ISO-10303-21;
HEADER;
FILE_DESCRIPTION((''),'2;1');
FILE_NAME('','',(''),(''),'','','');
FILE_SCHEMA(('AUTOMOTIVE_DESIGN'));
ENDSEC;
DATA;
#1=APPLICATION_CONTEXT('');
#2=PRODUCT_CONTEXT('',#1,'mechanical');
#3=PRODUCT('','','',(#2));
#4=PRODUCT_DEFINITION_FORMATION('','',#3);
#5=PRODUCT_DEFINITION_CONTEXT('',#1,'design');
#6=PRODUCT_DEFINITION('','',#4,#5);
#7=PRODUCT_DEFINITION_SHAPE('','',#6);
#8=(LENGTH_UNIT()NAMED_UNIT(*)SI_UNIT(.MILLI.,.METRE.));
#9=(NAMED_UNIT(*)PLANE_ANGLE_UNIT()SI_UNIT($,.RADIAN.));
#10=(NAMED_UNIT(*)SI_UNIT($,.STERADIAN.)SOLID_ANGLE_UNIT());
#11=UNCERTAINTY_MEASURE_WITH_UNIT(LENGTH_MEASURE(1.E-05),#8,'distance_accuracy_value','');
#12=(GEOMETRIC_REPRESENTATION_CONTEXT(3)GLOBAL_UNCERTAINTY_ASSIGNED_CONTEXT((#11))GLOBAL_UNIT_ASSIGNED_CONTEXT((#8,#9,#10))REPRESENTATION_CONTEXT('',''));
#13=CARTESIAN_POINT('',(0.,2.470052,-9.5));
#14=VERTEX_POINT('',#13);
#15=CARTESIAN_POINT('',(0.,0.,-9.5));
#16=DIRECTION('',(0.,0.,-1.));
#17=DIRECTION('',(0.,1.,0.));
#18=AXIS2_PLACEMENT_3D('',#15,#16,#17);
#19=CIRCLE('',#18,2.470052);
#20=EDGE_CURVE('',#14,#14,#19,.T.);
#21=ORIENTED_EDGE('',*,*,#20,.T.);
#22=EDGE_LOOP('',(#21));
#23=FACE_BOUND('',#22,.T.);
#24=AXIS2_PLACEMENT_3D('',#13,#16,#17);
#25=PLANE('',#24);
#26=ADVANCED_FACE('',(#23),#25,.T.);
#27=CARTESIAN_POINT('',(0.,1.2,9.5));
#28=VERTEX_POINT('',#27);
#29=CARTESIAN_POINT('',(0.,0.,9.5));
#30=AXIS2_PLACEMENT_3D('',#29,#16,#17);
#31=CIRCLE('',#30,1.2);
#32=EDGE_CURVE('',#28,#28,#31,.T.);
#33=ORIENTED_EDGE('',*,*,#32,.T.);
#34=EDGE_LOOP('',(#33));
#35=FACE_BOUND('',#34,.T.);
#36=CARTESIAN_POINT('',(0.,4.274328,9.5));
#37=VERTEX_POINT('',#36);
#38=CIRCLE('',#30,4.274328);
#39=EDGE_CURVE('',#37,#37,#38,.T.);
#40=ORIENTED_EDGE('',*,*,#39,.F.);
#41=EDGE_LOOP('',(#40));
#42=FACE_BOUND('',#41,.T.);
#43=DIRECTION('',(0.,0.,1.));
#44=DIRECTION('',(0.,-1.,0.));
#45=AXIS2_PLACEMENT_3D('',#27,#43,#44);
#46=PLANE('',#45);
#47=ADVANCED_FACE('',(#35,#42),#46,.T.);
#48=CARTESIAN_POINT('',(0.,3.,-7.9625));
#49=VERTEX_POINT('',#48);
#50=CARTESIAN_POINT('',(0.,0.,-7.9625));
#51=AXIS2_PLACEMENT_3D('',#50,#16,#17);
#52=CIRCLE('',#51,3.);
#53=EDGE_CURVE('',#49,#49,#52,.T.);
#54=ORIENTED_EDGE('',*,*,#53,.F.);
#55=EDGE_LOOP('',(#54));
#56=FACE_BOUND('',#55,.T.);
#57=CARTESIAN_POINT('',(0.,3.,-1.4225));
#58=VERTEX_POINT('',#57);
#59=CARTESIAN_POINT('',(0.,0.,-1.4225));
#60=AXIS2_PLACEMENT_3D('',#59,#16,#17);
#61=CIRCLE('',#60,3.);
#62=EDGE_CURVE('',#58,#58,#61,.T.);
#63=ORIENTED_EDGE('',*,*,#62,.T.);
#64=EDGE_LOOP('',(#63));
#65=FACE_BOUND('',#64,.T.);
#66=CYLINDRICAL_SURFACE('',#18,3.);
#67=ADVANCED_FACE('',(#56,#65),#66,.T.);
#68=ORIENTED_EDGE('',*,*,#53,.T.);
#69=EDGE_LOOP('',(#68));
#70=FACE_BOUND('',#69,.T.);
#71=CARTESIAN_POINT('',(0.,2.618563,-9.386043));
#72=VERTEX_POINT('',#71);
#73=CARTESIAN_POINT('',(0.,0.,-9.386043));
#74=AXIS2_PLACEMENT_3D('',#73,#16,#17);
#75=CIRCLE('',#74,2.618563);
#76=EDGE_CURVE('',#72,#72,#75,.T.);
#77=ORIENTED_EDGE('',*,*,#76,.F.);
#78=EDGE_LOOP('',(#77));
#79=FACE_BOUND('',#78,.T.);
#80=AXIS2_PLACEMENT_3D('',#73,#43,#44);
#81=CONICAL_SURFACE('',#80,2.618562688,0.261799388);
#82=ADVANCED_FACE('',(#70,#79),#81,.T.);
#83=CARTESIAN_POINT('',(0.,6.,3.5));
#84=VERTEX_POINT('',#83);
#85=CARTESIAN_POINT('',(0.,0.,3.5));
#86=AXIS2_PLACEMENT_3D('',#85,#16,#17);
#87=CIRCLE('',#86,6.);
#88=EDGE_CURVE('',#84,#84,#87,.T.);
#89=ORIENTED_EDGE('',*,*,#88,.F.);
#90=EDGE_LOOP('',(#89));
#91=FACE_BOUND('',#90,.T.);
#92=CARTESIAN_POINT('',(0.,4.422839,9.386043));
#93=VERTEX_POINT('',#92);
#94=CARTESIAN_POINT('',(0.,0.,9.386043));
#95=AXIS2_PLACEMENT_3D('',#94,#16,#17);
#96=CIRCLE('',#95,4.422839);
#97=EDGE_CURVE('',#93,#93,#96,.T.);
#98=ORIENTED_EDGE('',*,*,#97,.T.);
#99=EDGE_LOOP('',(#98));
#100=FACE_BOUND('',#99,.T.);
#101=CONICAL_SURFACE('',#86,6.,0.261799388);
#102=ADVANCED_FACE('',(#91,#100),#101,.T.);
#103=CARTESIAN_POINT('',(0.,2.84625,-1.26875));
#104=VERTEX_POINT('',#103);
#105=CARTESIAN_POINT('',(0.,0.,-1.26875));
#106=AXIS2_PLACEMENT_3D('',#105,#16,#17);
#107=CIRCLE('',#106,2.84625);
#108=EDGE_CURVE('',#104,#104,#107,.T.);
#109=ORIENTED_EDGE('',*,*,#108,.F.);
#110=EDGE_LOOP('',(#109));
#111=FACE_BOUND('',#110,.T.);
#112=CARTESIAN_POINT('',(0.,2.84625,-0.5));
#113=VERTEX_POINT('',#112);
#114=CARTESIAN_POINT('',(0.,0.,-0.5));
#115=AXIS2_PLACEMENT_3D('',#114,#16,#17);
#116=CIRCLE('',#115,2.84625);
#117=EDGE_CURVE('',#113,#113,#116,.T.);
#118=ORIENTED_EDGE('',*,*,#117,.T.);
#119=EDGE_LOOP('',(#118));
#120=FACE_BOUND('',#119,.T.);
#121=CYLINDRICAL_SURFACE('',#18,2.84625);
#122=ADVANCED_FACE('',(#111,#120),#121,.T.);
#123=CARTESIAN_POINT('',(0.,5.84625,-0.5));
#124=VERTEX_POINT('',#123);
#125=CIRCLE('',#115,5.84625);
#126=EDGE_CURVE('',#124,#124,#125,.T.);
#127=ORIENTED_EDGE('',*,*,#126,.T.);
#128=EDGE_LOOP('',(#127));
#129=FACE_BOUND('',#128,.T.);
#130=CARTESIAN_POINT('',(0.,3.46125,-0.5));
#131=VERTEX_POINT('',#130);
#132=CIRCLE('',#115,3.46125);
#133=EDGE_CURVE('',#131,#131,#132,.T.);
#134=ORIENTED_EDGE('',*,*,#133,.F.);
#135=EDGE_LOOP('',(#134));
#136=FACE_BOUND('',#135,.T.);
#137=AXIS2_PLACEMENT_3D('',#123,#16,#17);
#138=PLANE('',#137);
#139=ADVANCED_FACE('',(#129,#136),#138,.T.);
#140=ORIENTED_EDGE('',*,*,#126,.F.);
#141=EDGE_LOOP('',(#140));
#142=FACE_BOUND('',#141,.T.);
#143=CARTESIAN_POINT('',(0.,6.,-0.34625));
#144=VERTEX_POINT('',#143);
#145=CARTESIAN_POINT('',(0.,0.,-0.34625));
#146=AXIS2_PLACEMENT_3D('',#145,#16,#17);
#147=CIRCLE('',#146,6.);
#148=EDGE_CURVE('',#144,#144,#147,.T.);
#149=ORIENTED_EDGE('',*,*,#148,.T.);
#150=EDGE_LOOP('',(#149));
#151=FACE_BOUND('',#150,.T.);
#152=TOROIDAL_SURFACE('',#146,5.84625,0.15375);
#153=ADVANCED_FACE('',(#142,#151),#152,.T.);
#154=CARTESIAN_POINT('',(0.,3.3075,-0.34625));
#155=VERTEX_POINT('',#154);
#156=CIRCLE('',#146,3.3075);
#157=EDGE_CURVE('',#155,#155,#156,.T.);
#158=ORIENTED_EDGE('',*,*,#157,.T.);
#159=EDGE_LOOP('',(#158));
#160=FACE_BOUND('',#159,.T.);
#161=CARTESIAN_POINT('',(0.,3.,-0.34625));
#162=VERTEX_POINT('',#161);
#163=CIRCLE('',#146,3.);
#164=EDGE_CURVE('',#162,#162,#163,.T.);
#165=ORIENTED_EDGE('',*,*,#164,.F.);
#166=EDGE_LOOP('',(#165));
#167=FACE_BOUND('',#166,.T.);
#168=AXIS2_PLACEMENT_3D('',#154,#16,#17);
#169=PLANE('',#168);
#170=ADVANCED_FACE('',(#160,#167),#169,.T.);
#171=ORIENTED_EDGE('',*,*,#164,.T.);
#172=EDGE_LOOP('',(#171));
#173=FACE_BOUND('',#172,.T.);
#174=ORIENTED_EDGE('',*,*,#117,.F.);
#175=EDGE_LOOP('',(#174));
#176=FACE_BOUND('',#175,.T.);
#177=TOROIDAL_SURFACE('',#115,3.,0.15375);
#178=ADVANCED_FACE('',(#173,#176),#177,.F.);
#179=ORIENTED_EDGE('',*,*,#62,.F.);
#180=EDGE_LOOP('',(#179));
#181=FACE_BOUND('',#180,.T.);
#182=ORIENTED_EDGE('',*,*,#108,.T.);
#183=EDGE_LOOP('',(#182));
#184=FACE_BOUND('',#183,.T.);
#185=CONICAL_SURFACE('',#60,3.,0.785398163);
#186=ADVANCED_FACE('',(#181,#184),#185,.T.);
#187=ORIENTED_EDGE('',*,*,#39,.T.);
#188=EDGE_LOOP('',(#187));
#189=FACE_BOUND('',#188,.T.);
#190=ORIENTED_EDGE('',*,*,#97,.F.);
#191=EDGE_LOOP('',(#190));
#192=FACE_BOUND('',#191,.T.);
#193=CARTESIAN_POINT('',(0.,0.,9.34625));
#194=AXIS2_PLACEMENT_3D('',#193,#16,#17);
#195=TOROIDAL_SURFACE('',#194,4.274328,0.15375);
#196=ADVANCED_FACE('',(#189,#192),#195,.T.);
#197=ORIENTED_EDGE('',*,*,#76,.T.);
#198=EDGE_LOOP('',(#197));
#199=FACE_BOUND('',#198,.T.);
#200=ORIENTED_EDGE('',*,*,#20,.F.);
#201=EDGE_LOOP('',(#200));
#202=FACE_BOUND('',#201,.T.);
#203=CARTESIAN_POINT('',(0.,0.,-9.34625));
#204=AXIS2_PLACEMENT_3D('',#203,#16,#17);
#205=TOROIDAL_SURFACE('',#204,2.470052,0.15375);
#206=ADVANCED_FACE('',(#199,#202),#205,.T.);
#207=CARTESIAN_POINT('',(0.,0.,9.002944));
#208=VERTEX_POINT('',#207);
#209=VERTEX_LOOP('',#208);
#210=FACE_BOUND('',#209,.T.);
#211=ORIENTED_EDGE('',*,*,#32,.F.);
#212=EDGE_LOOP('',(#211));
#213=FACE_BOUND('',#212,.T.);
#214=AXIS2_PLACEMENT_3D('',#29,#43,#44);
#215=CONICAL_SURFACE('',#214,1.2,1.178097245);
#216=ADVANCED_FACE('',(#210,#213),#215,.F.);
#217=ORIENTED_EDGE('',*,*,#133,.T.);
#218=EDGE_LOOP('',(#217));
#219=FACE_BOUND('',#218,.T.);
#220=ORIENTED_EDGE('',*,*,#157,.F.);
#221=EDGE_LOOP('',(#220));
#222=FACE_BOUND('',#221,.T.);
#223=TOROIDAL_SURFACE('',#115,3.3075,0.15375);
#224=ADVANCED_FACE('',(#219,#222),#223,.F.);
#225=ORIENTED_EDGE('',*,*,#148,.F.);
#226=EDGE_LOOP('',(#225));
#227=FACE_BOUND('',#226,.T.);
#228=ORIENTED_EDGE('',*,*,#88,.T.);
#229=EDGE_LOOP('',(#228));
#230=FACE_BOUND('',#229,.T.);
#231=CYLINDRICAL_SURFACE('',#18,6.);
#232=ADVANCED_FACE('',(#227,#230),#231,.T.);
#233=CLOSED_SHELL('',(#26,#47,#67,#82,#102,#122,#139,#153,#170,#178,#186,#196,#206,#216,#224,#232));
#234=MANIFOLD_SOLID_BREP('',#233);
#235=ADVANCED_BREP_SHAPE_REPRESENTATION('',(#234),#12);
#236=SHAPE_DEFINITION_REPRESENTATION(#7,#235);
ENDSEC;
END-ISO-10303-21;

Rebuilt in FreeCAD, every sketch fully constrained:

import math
import FreeCAD as App
import Part
import Sketcher
from FreeCAD import Vector
Q = App.Units.Quantity

doc = App.newDocument("Part")
body = doc.addObject("PartDesign::Body", "Body")

# Sketch on YZ plane
sketch1 = body.newObject("Sketcher::SketchObject", "Sketch")
sketch1.AttachmentSupport = (doc.getObject("YZ_Plane"), [""])
sketch1.MapMode = "FlatFace"
sketch1.addGeometry(Part.LineSegment(Vector(4.27, 9.5, 0), Vector(1.2, 9.5, 0)), False)
sketch1.addGeometry(Part.LineSegment(Vector(1.2, 9.5, 0), Vector(0, 9, 0)), False)
sketch1.addGeometry(Part.LineSegment(Vector(0, 9, 0), Vector(0, -9.5, 0)), False)
sketch1.addGeometry(Part.LineSegment(Vector(0, -9.5, 0), Vector(2.47, -9.5, 0)), False)
sketch1.addGeometry(Part.ArcOfCircle(Part.Circle(Vector(2.47, -9.35, 0), Vector(0, 0, 1), 0.15), math.radians(-90), math.radians(-15)), False)
sketch1.addGeometry(Part.LineSegment(Vector(2.62, -9.39, 0), Vector(3, -7.96, 0)), False)
sketch1.addGeometry(Part.LineSegment(Vector(3, -7.96, 0), Vector(3, -1.42, 0)), False)
sketch1.addGeometry(Part.LineSegment(Vector(3, -1.42, 0), Vector(2.85, -1.27, 0)), False)
sketch1.addGeometry(Part.LineSegment(Vector(2.85, -1.27, 0), Vector(2.85, -0.5, 0)), False)
sketch1.addGeometry(Part.ArcOfCircle(Part.Circle(Vector(3, -0.5, 0), Vector(0, 0, 1), 0.15), math.radians(90), math.radians(180)), False)
sketch1.addGeometry(Part.LineSegment(Vector(3, -0.35, 0), Vector(3.31, -0.35, 0)), False)
sketch1.addGeometry(Part.ArcOfCircle(Part.Circle(Vector(3.31, -0.5, 0), Vector(0, 0, 1), 0.15), math.radians(0), math.radians(90)), False)
sketch1.addGeometry(Part.LineSegment(Vector(3.46, -0.5, 0), Vector(5.85, -0.5, 0)), False)
sketch1.addGeometry(Part.ArcOfCircle(Part.Circle(Vector(5.85, -0.35, 0), Vector(0, 0, 1), 0.15), math.radians(-90), math.radians(0)), False)
sketch1.addGeometry(Part.LineSegment(Vector(6, -0.35, 0), Vector(6, 3.5, 0)), False)
sketch1.addGeometry(Part.LineSegment(Vector(6, 3.5, 0), Vector(4.42, 9.39, 0)), False)
sketch1.addGeometry(Part.ArcOfCircle(Part.Circle(Vector(4.27, 9.35, 0), Vector(0, 0, 1), 0.15), math.radians(15), math.radians(90)), False)
sketch1.addConstraint(Sketcher.Constraint("Coincident", 0, 2, 1, 1))
sketch1.addConstraint(Sketcher.Constraint("Coincident", 1, 2, 2, 1))
sketch1.addConstraint(Sketcher.Constraint("Coincident", 2, 2, 3, 1))
sketch1.addConstraint(Sketcher.Constraint("Tangent", 3, 2, 4, 1))
sketch1.addConstraint(Sketcher.Constraint("Tangent", 4, 2, 5, 1))
sketch1.addConstraint(Sketcher.Constraint("Coincident", 5, 2, 6, 1))
sketch1.addConstraint(Sketcher.Constraint("Coincident", 6, 2, 7, 1))
sketch1.addConstraint(Sketcher.Constraint("Coincident", 7, 2, 8, 1))
sketch1.addConstraint(Sketcher.Constraint("Tangent", 8, 2, 9, 2))
sketch1.addConstraint(Sketcher.Constraint("Tangent", 9, 1, 10, 1))
sketch1.addConstraint(Sketcher.Constraint("Tangent", 10, 2, 11, 2))
sketch1.addConstraint(Sketcher.Constraint("Coincident", 11, 1, 12, 1))
sketch1.addConstraint(Sketcher.Constraint("Tangent", 12, 2, 13, 1))
sketch1.addConstraint(Sketcher.Constraint("Tangent", 13, 2, 14, 1))
sketch1.addConstraint(Sketcher.Constraint("Coincident", 14, 2, 15, 1))
sketch1.addConstraint(Sketcher.Constraint("Tangent", 15, 2, 16, 1))
sketch1.addConstraint(Sketcher.Constraint("Tangent", 16, 2, 0, 1))
sketch1.addConstraint(Sketcher.Constraint("Horizontal", 0))
sketch1.addConstraint(Sketcher.Constraint("Vertical", 2))
sketch1.addConstraint(Sketcher.Constraint("Horizontal", 3))
sketch1.addConstraint(Sketcher.Constraint("Vertical", 6))
sketch1.addConstraint(Sketcher.Constraint("Vertical", 8))
sketch1.addConstraint(Sketcher.Constraint("Horizontal", 10))
sketch1.addConstraint(Sketcher.Constraint("Horizontal", 12))
sketch1.addConstraint(Sketcher.Constraint("Vertical", 14))
sketch1.addConstraint(Sketcher.Constraint("Equal", 4, 9))
sketch1.addConstraint(Sketcher.Constraint("Equal", 9, 11))
sketch1.addConstraint(Sketcher.Constraint("Equal", 11, 13))
sketch1.addConstraint(Sketcher.Constraint("Equal", 13, 16))
sketch1.addConstraint(Sketcher.Constraint("PointOnObject", 1, 2, -2))
sketch1.addConstraint(Sketcher.Constraint("Horizontal", 13, 3, 9, 1))
sketch1.addConstraint(Sketcher.Constraint("Vertical", 9, 3, 5, 2))
sketch1.addConstraint(Sketcher.Constraint("Angle", 5, Q("75 deg")))
sketch1.addConstraint(Sketcher.Constraint("Angle", 7, Q("135 deg")))
sketch1.addConstraint(Sketcher.Constraint("Angle", 15, Q("105 deg")))
sketch1.addConstraint(Sketcher.Constraint("DistanceX", -1, 1, 9, 3, 3.0))
sketch1.addConstraint(Sketcher.Constraint("DistanceX", -1, 1, 13, 2, 6.0))
sketch1.addConstraint(Sketcher.Constraint("Angle", 1, Q("-157.5 deg")))
sketch1.addConstraint(Sketcher.Constraint("DistanceY", 4, 3, 13, 3, 9.0))
sketch1.addConstraint(Sketcher.Constraint("DistanceY", 9, 3, 0, 2, 10.0))
sketch1.addConstraint(Sketcher.Constraint("DistanceY", 12, 2, 14, 2, 4.0))
sketch1.addConstraint(Sketcher.Constraint("DistanceY", 6, 1, 6, 2, 6.54))
sketch1.addConstraint(Sketcher.Constraint("DistanceY", 9, 3, -1, 1, 0.5))
sketch1.addConstraint(Sketcher.Constraint("DistanceX", -1, 1, 0, 2, 1.2))
sketch1.addConstraint(Sketcher.Constraint("DistanceX", 12, 1, 12, 2, 2.385))
sketch1.addConstraint(Sketcher.Constraint("Radius", 4, 0.15375))
sketch1.addConstraint(Sketcher.Constraint("DistanceX", 3, 1, 3, 2, 2.470052))
revolution = body.newObject("PartDesign::Revolution", "Revolution")
revolution.Profile = sketch1
revolution.ReferenceAxis = (sketch1, ["V_Axis"])
revolution.Angle = 360

doc.recompute()
